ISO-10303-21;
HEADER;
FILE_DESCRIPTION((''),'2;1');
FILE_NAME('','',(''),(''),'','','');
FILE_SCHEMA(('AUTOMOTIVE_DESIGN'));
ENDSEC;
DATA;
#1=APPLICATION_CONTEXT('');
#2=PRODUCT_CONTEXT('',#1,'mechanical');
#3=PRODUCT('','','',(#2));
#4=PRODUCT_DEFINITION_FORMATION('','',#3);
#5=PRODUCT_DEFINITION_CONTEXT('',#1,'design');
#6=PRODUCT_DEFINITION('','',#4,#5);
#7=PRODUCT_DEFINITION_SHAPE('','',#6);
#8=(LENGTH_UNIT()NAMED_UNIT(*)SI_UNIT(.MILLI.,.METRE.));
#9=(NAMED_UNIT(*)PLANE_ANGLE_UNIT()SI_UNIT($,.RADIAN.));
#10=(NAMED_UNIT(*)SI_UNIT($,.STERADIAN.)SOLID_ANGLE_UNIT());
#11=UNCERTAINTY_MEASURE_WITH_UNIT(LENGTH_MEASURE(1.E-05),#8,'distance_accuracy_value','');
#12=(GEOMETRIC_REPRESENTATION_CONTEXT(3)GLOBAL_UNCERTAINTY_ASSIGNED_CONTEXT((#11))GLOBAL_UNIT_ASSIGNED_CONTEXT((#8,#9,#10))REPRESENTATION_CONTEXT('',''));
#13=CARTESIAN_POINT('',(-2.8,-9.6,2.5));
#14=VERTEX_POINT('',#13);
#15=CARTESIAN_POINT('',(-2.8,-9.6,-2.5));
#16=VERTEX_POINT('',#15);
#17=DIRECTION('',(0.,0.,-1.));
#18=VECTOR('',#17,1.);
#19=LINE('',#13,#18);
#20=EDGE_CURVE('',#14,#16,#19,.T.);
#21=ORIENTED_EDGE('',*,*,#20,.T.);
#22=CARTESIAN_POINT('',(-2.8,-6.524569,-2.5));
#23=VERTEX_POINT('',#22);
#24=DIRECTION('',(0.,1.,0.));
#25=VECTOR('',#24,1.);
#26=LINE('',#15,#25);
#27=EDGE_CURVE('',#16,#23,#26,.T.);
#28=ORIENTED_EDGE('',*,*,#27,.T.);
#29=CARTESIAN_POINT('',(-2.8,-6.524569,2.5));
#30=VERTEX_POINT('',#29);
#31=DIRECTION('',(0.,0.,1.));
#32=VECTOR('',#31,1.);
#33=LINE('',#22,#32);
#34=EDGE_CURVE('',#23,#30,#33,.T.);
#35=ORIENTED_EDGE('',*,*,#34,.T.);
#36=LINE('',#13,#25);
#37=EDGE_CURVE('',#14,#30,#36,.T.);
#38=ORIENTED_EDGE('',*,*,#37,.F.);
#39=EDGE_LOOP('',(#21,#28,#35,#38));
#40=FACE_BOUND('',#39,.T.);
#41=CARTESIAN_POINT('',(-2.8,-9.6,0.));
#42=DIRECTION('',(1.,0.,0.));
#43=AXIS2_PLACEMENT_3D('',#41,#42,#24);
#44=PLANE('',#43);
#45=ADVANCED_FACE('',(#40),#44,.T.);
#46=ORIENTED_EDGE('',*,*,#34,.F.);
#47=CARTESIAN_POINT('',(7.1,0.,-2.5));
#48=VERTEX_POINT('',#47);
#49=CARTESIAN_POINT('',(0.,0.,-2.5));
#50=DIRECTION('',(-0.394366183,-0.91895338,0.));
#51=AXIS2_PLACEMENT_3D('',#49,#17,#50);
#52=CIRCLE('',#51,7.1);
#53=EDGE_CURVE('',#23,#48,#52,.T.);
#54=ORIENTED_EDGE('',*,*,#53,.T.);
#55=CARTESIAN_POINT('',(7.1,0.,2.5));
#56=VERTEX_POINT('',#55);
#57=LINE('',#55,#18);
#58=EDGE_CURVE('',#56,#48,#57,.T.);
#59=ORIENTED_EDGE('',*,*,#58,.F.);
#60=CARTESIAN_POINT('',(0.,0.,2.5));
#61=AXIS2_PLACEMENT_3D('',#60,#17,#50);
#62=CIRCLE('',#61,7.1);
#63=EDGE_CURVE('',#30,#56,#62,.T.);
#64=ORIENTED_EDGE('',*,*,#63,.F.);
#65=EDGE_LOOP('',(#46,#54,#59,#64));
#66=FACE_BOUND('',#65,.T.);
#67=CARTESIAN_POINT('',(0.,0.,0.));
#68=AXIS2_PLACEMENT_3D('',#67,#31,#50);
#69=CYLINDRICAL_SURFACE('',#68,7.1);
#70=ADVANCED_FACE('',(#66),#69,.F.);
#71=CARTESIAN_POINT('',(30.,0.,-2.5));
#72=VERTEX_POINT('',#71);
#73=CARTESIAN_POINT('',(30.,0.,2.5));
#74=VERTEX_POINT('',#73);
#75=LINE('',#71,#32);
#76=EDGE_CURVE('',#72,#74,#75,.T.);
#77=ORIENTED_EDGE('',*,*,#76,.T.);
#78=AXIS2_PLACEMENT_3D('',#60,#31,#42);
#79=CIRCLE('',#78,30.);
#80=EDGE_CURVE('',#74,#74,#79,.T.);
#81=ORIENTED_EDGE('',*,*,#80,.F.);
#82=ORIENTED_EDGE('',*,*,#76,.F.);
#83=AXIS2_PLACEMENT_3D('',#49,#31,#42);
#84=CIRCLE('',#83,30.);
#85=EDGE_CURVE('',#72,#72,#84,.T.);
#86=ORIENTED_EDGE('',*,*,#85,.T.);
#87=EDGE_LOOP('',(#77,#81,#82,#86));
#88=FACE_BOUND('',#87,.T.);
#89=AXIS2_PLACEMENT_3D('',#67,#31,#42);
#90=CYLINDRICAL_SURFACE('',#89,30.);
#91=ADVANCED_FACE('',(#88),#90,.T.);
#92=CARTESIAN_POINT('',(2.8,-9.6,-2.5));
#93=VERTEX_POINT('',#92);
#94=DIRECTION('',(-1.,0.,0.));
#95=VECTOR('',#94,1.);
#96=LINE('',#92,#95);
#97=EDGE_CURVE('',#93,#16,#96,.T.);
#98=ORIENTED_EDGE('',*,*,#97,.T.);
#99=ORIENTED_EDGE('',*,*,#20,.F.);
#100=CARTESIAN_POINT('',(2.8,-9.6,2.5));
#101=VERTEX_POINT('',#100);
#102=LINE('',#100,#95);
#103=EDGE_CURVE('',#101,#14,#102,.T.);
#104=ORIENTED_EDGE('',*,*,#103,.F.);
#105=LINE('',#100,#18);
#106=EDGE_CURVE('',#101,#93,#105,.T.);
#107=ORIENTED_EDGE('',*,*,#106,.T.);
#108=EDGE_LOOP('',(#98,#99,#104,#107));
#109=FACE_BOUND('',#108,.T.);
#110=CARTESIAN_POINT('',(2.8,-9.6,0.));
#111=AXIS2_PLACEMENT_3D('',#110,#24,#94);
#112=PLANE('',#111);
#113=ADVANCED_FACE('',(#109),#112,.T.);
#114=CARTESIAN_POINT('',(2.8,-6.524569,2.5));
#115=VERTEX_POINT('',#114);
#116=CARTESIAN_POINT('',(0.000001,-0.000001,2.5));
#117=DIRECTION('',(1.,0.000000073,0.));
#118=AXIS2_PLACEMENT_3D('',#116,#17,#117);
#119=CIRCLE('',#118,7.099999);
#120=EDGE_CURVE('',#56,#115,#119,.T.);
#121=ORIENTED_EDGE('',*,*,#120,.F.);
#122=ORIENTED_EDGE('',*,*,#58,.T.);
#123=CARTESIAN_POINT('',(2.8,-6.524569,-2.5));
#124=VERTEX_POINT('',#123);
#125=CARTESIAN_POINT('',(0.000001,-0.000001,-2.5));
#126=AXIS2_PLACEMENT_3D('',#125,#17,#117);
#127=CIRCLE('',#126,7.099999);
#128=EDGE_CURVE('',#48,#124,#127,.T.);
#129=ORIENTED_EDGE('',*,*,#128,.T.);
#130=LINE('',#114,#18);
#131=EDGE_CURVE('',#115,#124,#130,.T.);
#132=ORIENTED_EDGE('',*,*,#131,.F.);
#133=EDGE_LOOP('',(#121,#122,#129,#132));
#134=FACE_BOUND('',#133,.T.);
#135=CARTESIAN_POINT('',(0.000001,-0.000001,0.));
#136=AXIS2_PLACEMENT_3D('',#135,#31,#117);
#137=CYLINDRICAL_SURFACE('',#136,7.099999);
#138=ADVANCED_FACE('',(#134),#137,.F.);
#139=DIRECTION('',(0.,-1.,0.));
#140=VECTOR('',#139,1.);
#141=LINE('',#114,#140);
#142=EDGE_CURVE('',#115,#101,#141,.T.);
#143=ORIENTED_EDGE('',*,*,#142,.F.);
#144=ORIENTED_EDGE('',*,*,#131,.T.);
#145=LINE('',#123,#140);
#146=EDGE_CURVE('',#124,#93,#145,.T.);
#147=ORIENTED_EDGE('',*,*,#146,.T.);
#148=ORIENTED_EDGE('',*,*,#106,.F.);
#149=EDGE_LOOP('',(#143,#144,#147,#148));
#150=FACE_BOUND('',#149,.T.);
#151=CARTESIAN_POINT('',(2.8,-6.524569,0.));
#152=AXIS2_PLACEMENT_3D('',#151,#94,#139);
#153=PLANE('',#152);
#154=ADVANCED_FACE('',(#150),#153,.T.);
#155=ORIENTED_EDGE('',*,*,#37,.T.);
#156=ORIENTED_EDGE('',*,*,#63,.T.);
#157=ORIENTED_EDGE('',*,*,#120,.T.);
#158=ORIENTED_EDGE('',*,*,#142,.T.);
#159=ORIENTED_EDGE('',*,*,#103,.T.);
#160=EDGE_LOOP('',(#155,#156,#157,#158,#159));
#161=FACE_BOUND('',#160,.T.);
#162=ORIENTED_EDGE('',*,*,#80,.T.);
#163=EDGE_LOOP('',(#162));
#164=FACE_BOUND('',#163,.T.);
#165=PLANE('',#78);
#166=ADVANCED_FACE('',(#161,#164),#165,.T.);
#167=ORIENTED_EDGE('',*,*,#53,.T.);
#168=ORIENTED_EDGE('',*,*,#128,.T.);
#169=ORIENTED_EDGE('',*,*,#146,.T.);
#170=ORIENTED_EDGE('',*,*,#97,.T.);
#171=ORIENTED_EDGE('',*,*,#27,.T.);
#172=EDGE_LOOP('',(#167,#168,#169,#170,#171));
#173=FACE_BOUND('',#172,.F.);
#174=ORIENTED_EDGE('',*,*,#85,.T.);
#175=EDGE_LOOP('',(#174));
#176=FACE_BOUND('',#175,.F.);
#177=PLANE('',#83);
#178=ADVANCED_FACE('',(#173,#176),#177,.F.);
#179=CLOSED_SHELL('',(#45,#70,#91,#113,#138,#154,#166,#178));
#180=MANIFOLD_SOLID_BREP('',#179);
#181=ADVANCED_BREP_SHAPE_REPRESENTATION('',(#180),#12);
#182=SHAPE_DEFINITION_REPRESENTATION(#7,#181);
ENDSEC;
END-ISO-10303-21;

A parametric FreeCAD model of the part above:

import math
import FreeCAD as App
import Part
import Sketcher
Q = App.Units.Quantity

doc = App.newDocument("Part")
body = doc.addObject("PartDesign::Body", "Body")

sketch1 = body.newObject("Sketcher::SketchObject", "Sketch")
sketch1.AttachmentSupport = (doc.getObject("XY_Plane"), [""])
sketch1.MapMode = "FlatFace"
sketch1.addGeometry(Part.Circle(App.Vector(0, 0, 0), App.Vector(0, 0, 1), 30), False)
sketch1.addGeometry(Part.LineSegment(App.Vector(-2.8, -9.6, 0), App.Vector(-2.8, -6.524569, 0)), False)
sketch1.addGeometry(Part.ArcOfCircle(Part.Circle(App.Vector(0, 0, 0), App.Vector(0, 0, 1), 7.1), math.radians(-0.000001), math.radians(246.77355)), False)
sketch1.addGeometry(Part.ArcOfCircle(Part.Circle(App.Vector(0.000001, -0.000001, 0), App.Vector(0, 0, 1), 7.099999), math.radians(-66.773552), math.radians(0.000004)), False)
sketch1.addGeometry(Part.LineSegment(App.Vector(2.8, -6.524569, 0), App.Vector(2.8, -9.6, 0)), False)
sketch1.addGeometry(Part.LineSegment(App.Vector(2.8, -9.6, 0), App.Vector(-2.8, -9.6, 0)), False)
sketch1.addConstraint(Sketcher.Constraint("Coincident", 1, 2, 2, 2))
sketch1.addConstraint(Sketcher.Constraint("Tangent", 2, 1, 3, 2))
sketch1.addConstraint(Sketcher.Constraint("Coincident", 3, 1, 4, 1))
sketch1.addConstraint(Sketcher.Constraint("Coincident", 4, 2, 5, 1))
sketch1.addConstraint(Sketcher.Constraint("Coincident", 5, 2, 1, 1))
sketch1.addConstraint(Sketcher.Constraint("Vertical", 1))
sketch1.addConstraint(Sketcher.Constraint("Vertical", 4))
sketch1.addConstraint(Sketcher.Constraint("Horizontal", 5))
sketch1.addConstraint(Sketcher.Constraint("Coincident", 0, 3, -1, 1))
sketch1.addConstraint(Sketcher.Constraint("Coincident", 2, 3, -1, 1))
sketch1.addConstraint(Sketcher.Constraint("Equal", 2, 3))
sketch1.addConstraint(Sketcher.Constraint("PointOnObject", 2, 1, -1))
sketch1.addConstraint(Sketcher.Constraint("Horizontal", 1, 2, 3, 1))
sketch1.addConstraint(Sketcher.Constraint("Diameter", 0, Q("60 mm")))
sketch1.addConstraint(Sketcher.Constraint("Radius", 2, Q("7.1 mm")))
sketch1.addConstraint(Sketcher.Constraint("DistanceX", 5, 2, 5, 1, Q("5.6 mm")))
sketch1.addConstraint(Sketcher.Constraint("DistanceY", 4, 2, -1, 1, Q("9.6 mm")))
pad1 = body.newObject("PartDesign::Pad", "Pad")
pad1.Profile = sketch1
pad1.Length = 5
pad1.Midplane = True

doc.recompute()
